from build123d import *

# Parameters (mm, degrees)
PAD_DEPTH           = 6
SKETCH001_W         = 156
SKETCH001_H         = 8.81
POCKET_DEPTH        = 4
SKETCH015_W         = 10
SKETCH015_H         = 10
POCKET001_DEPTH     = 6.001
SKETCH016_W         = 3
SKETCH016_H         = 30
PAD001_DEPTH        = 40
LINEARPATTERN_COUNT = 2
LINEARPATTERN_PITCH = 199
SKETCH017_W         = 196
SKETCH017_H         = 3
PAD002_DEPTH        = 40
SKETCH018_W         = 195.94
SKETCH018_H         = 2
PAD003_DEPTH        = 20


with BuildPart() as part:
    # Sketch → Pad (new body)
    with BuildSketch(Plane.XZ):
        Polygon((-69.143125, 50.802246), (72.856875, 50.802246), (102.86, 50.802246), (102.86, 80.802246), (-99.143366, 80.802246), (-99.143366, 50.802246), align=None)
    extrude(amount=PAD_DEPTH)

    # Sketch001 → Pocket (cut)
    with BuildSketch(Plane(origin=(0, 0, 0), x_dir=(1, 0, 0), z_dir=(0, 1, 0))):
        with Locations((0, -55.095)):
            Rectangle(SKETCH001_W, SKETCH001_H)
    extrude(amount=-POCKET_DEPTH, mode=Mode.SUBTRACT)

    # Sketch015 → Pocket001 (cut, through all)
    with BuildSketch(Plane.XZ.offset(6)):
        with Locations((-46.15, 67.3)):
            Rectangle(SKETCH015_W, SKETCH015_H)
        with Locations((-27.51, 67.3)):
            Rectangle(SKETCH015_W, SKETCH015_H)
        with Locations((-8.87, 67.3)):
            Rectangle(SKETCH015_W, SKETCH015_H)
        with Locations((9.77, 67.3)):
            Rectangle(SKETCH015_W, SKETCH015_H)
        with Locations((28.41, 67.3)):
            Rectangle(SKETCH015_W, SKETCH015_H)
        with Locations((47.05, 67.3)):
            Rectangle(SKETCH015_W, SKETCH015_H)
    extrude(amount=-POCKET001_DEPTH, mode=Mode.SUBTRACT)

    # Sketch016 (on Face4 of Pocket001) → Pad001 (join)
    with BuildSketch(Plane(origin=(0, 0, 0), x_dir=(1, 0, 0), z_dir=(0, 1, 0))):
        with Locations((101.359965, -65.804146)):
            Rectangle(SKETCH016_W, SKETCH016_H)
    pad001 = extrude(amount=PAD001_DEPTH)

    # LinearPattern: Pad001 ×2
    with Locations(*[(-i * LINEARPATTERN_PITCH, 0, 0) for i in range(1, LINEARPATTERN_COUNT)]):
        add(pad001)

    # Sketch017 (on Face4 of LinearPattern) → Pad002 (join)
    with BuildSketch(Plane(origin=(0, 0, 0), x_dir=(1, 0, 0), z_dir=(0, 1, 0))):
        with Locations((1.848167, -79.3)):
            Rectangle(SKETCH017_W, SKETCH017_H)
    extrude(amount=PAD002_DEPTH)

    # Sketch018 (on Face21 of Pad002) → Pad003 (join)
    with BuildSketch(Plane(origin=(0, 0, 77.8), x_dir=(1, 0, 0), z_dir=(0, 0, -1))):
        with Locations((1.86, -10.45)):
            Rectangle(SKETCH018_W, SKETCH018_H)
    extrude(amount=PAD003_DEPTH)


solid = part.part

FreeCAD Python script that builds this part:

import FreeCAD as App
import Part
import Sketcher

V = App.Vector


def add_polygon(sketch, points):
    """Adds a closed chain of lines whose ends are joined by coincident constraints."""
    first, n = sketch.GeometryCount, len(points)
    for a, b in zip(points, points[1:] + points[:1]):
        sketch.addGeometry(Part.LineSegment(App.Vector(*a, 0), App.Vector(*b, 0)), False)
    for i in range(n):
        sketch.addConstraint(Sketcher.Constraint("Coincident", first + i, 2, first + (i + 1) % n, 1))

doc = App.newDocument("Part")
params = doc.addObject("Spreadsheet::Sheet", "Params")
for row, (alias, value) in enumerate([
    ("sketch1_height", "30 mm"),
    ("pad1_length", "6 mm"),
    ("sketch2_width", "156 mm"),
    ("sketch2_height", "8.81 mm"),
    ("pocket1_length", "4 mm"),
    ("sketch3_width", "10 mm"),
    ("sketch4_width", "3 mm"),
    ("sketch4_height", "30 mm"),
    ("pad2_length", "40 mm"),
    ("linearpattern_pitch", "199 mm"),
    ("sketch5_width", "196 mm"),
    ("sketch5_height", "3 mm"),
    ("pad3_length", "40 mm"),
    ("sketch6_height", "2 mm"),
    ("sketch6_width", "195.94 mm"),
    ("pad4_length", "20 mm"),
], start=1):
    params.set(f"A{row}", alias)
    params.set(f"B{row}", "=" + value)
    params.setAlias(f"B{row}", alias)

body = doc.addObject("PartDesign::Body", "Body")

# Sketch on XZ plane
sketch1 = doc.addObject("Sketcher::SketchObject", "Sketch")
body.addObject(sketch1)
sketch1.AttachmentSupport = (doc.XZ_Plane, [""])
sketch1.MapMode = "FlatFace"
add_polygon(sketch1, [(103, 51), (103, 81), (-99, 81), (-99, 51)])  # lines 0-3
sketch1.addConstraint(Sketcher.Constraint("Vertical", 0))
sketch1.addConstraint(Sketcher.Constraint("Horizontal", 1))
sketch1.addConstraint(Sketcher.Constraint("Vertical", 2))
sketch1.addConstraint(Sketcher.Constraint("Horizontal", 3))
sketch1.addConstraint(Sketcher.Constraint("DistanceY", 0, 1, 0, 2, 30.0))
sketch1.addConstraint(Sketcher.Constraint("DistanceX", -1, 1, 0, 2, 102.86))
sketch1.addConstraint(Sketcher.Constraint("DistanceX", 1, 2, 1, 1, 202.003366))
sketch1.addConstraint(Sketcher.Constraint("DistanceY", -1, 1, 0, 2, 80.802246))
sketch1.setExpression("Constraints[8]", "Params.sketch1_height")
pad1 = doc.addObject("PartDesign::Pad", "Pad")
body.addObject(pad1)
pad1.Profile = sketch1
pad1.setExpression("Length", "Params.pad1_length")

# Sketch on XZ plane
sketch2 = doc.addObject("Sketcher::SketchObject", "Sketch001")
body.addObject(sketch2)
sketch2.AttachmentSupport = (doc.XZ_Plane, [""])
sketch2.MapMode = "FlatFace"
add_polygon(sketch2, [(-78, 51), (-78, 60), (78, 60), (78, 51)])  # lines 0-3
sketch2.addConstraint(Sketcher.Constraint("Vertical", 0))
sketch2.addConstraint(Sketcher.Constraint("Horizontal", 1))
sketch2.addConstraint(Sketcher.Constraint("Vertical", 2))
sketch2.addConstraint(Sketcher.Constraint("Horizontal", 3))
sketch2.addConstraint(Sketcher.Constraint("DistanceX", 1, 1, 1, 2, 156.0))
sketch2.addConstraint(Sketcher.Constraint("DistanceX", 0, 2, -1, 1, 78.0))
sketch2.addConstraint(Sketcher.Constraint("DistanceY", 0, 1, 0, 2, 8.81))
sketch2.addConstraint(Sketcher.Constraint("DistanceY", -1, 1, 0, 2, 59.5))
sketch2.setExpression("Constraints[8]", "Params.sketch2_width")
sketch2.setExpression("Constraints[10]", "Params.sketch2_height")
pocket1 = doc.addObject("PartDesign::Pocket", "Pocket")
body.addObject(pocket1)
pocket1.Profile = sketch2
pocket1.setExpression("Length", "Params.pocket1_length")
pocket1.Reversed = True

# Sketch on XZ plane
sketch3 = doc.addObject("Sketcher::SketchObject", "Sketch002")
body.addObject(sketch3)
sketch3.AttachmentSupport = (doc.XZ_Plane, [""])
sketch3.MapMode = "FlatFace"
sketch3.AttachmentOffset = App.Placement(V(0, 0, 6), App.Rotation())
add_polygon(sketch3, [(-51, 72), (-51, 62), (-41, 62), (-41, 72)])  # lines 0-3
add_polygon(sketch3, [(-33, 72), (-33, 62), (-23, 62), (-23, 72)])  # lines 4-7
add_polygon(sketch3, [(-14, 72), (-14, 62), (-4, 62), (-4, 72)])  # lines 8-11
add_polygon(sketch3, [(5, 72), (5, 62), (15, 62), (15, 72)])  # lines 12-15
add_polygon(sketch3, [(23, 72), (23, 62), (33, 62), (33, 72)])  # lines 16-19
add_polygon(sketch3, [(42, 72), (42, 62), (52, 62), (52, 72)])  # lines 20-23
sketch3.addConstraint(Sketcher.Constraint("Vertical", 0))
sketch3.addConstraint(Sketcher.Constraint("Horizontal", 1))
sketch3.addConstraint(Sketcher.Constraint("Vertical", 2))
sketch3.addConstraint(Sketcher.Constraint("Horizontal", 3))
sketch3.addConstraint(Sketcher.Constraint("Vertical", 4))
sketch3.addConstraint(Sketcher.Constraint("Horizontal", 5))
sketch3.addConstraint(Sketcher.Constraint("Vertical", 6))
sketch3.addConstraint(Sketcher.Constraint("Horizontal", 7))
sketch3.addConstraint(Sketcher.Constraint("Vertical", 8))
sketch3.addConstraint(Sketcher.Constraint("Horizontal", 9))
sketch3.addConstraint(Sketcher.Constraint("Vertical", 10))
sketch3.addConstraint(Sketcher.Constraint("Horizontal", 11))
sketch3.addConstraint(Sketcher.Constraint("Vertical", 12))
sketch3.addConstraint(Sketcher.Constraint("Horizontal", 13))
sketch3.addConstraint(Sketcher.Constraint("Vertical", 14))
sketch3.addConstraint(Sketcher.Constraint("Horizontal", 15))
sketch3.addConstraint(Sketcher.Constraint("Vertical", 16))
sketch3.addConstraint(Sketcher.Constraint("Horizontal", 17))
sketch3.addConstraint(Sketcher.Constraint("Vertical", 18))
sketch3.addConstraint(Sketcher.Constraint("Horizontal", 19))
sketch3.addConstraint(Sketcher.Constraint("Vertical", 20))
sketch3.addConstraint(Sketcher.Constraint("Horizontal", 21))
sketch3.addConstraint(Sketcher.Constraint("Vertical", 22))
sketch3.addConstraint(Sketcher.Constraint("Horizontal", 23))
sketch3.addConstraint(Sketcher.Constraint("Horizontal", 1, 2, 4, 2))
sketch3.addConstraint(Sketcher.Constraint("Horizontal", 3, 2, 6, 2))
sketch3.addConstraint(Sketcher.Constraint("Horizontal", 5, 2, 8, 2))
sketch3.addConstraint(Sketcher.Constraint("Horizontal", 7, 2, 10, 2))
sketch3.addConstraint(Sketcher.Constraint("Horizontal", 9, 2, 12, 2))
sketch3.addConstraint(Sketcher.Constraint("Horizontal", 11, 2, 14, 2))
sketch3.addConstraint(Sketcher.Constraint("Horizontal", 13, 2, 16, 2))
sketch3.addConstraint(Sketcher.Constraint("Horizontal", 15, 2, 18, 2))
sketch3.addConstraint(Sketcher.Constraint("Horizontal", 17, 2, 20, 2))
sketch3.addConstraint(Sketcher.Constraint("Horizontal", 19, 2, 22, 2))
sketch3.addConstraint(Sketcher.Constraint("Equal", 3, 5))
sketch3.addConstraint(Sketcher.Constraint("Equal", 7, 9))
sketch3.addConstraint(Sketcher.Constraint("Equal", 11, 13))
sketch3.addConstraint(Sketcher.Constraint("Equal", 15, 17))
sketch3.addConstraint(Sketcher.Constraint("Equal", 19, 21))
sketch3.addConstraint(Sketcher.Constraint("Equal", 23, 0))
sketch3.addConstraint(Sketcher.Constraint("DistanceX", 1, 1, 1, 2, 10.0))
sketch3.addConstraint(Sketcher.Constraint("DistanceY", -1, 1, 0, 2, 62.3))
sketch3.addConstraint(Sketcher.Constraint("DistanceX", 0, 2, -1, 1, 51.15))
sketch3.addConstraint(Sketcher.Constraint("DistanceX", 4, 2, -1, 1, 32.51))
sketch3.addConstraint(Sketcher.Constraint("DistanceX", 8, 2, -1, 1, 13.87))
sketch3.addConstraint(Sketcher.Constraint("DistanceX", -1, 1, 12, 2, 4.77))
sketch3.addConstraint(Sketcher.Constraint("DistanceX", -1, 1, 16, 2, 23.41))
sketch3.addConstraint(Sketcher.Constraint("DistanceX", -1, 1, 20, 2, 42.05))
sketch3.setExpression("Constraints[64]", "Params.sketch3_width")
pocket2 = doc.addObject("PartDesign::Pocket", "Pocket001")
body.addObject(pocket2)
pocket2.Profile = sketch3
pocket2.Type = "ThroughAll"

# Sketch on XZ plane
sketch4 = doc.addObject("Sketcher::SketchObject", "Sketch003")
body.addObject(sketch4)
sketch4.AttachmentSupport = (doc.XZ_Plane, [""])
sketch4.MapMode = "FlatFace"
add_polygon(sketch4, [(99.9, 50.8), (99.9, 80.8), (102.9, 80.8), (102.9, 50.8)])  # lines 0-3
sketch4.addConstraint(Sketcher.Constraint("Vertical", 0))
sketch4.addConstraint(Sketcher.Constraint("Horizontal", 1))
sketch4.addConstraint(Sketcher.Constraint("Vertical", 2))
sketch4.addConstraint(Sketcher.Constraint("Horizontal", 3))
sketch4.addConstraint(Sketcher.Constraint("DistanceX", 1, 1, 1, 2, 3.0))
sketch4.addConstraint(Sketcher.Constraint("DistanceY", 0, 1, 0, 2, 30.0))
sketch4.addConstraint(Sketcher.Constraint("DistanceX", -1, 1, 0, 2, 99.859965))
sketch4.addConstraint(Sketcher.Constraint("DistanceY", -1, 1, 0, 2, 80.804146))
sketch4.setExpression("Constraints[8]", "Params.sketch4_width")
sketch4.setExpression("Constraints[9]", "Params.sketch4_height")
pad2 = doc.addObject("PartDesign::Pad", "Pad001")
body.addObject(pad2)
pad2.Profile = sketch4
pad2.setExpression("Length", "Params.pad2_length")
pad2.Reversed = True
doc.recompute()

linearpattern = doc.addObject("PartDesign::LinearPattern", "LinearPattern")
body.addObject(linearpattern)
linearpattern.Originals = [pad2]
linearpattern.Direction = (doc.X_Axis, [""])
linearpattern.Mode = "offset"
linearpattern.setExpression("Offset", "Params.linearpattern_pitch")
linearpattern.Occurrences = 2
linearpattern.Reversed = True
body.Tip = linearpattern

# Sketch on XZ plane
sketch5 = doc.addObject("Sketcher::SketchObject", "Sketch004")
body.addObject(sketch5)
sketch5.AttachmentSupport = (doc.XZ_Plane, [""])
sketch5.MapMode = "FlatFace"
add_polygon(sketch5, [(-96.2, 77.8), (-96.2, 80.8), (99.8, 80.8), (99.8, 77.8)])  # lines 0-3
sketch5.addConstraint(Sketcher.Constraint("Vertical", 0))
sketch5.addConstraint(Sketcher.Constraint("Horizontal", 1))
sketch5.addConstraint(Sketcher.Constraint("Vertical", 2))
sketch5.addConstraint(Sketcher.Constraint("Horizontal", 3))
sketch5.addConstraint(Sketcher.Constraint("DistanceX", 1, 1, 1, 2, 196.0))
sketch5.addConstraint(Sketcher.Constraint("DistanceY", 0, 1, 0, 2, 3.0))
sketch5.addConstraint(Sketcher.Constraint("DistanceY", -1, 1, 0, 2, 80.8))
sketch5.addConstraint(Sketcher.Constraint("DistanceX", 0, 2, -1, 1, 96.151833))
sketch5.setExpression("Constraints[8]", "Params.sketch5_width")
sketch5.setExpression("Constraints[9]", "Params.sketch5_height")
pad3 = doc.addObject("PartDesign::Pad", "Pad002")
body.addObject(pad3)
pad3.Profile = sketch5
pad3.setExpression("Length", "Params.pad3_length")
pad3.Reversed = True

# Sketch on XY plane
sketch6 = doc.addObject("Sketcher::SketchObject", "Sketch005")
body.addObject(sketch6)
sketch6.AttachmentSupport = (doc.XY_Plane, [""])
sketch6.MapMode = "FlatFace"
sketch6.AttachmentOffset = App.Placement(V(0, 0, 77.8), App.Rotation())
add_polygon(sketch6, [(-96.1, 9.4), (-96.1, 11.4), (99.8, 11.4), (99.8, 9.4)])  # lines 0-3
sketch6.addConstraint(Sketcher.Constraint("Vertical", 0))
sketch6.addConstraint(Sketcher.Constraint("Horizontal", 1))
sketch6.addConstraint(Sketcher.Constraint("Vertical", 2))
sketch6.addConstraint(Sketcher.Constraint("Horizontal", 3))
sketch6.addConstraint(Sketcher.Constraint("DistanceY", 0, 1, 0, 2, 2.0))
sketch6.addConstraint(Sketcher.Constraint("DistanceX", 1, 1, 1, 2, 195.94))
sketch6.addConstraint(Sketcher.Constraint("DistanceX", 0, 2, -1, 1, 96.11))
sketch6.addConstraint(Sketcher.Constraint("DistanceY", -1, 1, 0, 2, 11.45))
sketch6.setExpression("Constraints[8]", "Params.sketch6_height")
sketch6.setExpression("Constraints[9]", "Params.sketch6_width")
pad4 = doc.addObject("PartDesign::Pad", "Pad003")
body.addObject(pad4)
pad4.Profile = sketch6
pad4.setExpression("Length", "Params.pad4_length")
pad4.Reversed = True

doc.recompute()
